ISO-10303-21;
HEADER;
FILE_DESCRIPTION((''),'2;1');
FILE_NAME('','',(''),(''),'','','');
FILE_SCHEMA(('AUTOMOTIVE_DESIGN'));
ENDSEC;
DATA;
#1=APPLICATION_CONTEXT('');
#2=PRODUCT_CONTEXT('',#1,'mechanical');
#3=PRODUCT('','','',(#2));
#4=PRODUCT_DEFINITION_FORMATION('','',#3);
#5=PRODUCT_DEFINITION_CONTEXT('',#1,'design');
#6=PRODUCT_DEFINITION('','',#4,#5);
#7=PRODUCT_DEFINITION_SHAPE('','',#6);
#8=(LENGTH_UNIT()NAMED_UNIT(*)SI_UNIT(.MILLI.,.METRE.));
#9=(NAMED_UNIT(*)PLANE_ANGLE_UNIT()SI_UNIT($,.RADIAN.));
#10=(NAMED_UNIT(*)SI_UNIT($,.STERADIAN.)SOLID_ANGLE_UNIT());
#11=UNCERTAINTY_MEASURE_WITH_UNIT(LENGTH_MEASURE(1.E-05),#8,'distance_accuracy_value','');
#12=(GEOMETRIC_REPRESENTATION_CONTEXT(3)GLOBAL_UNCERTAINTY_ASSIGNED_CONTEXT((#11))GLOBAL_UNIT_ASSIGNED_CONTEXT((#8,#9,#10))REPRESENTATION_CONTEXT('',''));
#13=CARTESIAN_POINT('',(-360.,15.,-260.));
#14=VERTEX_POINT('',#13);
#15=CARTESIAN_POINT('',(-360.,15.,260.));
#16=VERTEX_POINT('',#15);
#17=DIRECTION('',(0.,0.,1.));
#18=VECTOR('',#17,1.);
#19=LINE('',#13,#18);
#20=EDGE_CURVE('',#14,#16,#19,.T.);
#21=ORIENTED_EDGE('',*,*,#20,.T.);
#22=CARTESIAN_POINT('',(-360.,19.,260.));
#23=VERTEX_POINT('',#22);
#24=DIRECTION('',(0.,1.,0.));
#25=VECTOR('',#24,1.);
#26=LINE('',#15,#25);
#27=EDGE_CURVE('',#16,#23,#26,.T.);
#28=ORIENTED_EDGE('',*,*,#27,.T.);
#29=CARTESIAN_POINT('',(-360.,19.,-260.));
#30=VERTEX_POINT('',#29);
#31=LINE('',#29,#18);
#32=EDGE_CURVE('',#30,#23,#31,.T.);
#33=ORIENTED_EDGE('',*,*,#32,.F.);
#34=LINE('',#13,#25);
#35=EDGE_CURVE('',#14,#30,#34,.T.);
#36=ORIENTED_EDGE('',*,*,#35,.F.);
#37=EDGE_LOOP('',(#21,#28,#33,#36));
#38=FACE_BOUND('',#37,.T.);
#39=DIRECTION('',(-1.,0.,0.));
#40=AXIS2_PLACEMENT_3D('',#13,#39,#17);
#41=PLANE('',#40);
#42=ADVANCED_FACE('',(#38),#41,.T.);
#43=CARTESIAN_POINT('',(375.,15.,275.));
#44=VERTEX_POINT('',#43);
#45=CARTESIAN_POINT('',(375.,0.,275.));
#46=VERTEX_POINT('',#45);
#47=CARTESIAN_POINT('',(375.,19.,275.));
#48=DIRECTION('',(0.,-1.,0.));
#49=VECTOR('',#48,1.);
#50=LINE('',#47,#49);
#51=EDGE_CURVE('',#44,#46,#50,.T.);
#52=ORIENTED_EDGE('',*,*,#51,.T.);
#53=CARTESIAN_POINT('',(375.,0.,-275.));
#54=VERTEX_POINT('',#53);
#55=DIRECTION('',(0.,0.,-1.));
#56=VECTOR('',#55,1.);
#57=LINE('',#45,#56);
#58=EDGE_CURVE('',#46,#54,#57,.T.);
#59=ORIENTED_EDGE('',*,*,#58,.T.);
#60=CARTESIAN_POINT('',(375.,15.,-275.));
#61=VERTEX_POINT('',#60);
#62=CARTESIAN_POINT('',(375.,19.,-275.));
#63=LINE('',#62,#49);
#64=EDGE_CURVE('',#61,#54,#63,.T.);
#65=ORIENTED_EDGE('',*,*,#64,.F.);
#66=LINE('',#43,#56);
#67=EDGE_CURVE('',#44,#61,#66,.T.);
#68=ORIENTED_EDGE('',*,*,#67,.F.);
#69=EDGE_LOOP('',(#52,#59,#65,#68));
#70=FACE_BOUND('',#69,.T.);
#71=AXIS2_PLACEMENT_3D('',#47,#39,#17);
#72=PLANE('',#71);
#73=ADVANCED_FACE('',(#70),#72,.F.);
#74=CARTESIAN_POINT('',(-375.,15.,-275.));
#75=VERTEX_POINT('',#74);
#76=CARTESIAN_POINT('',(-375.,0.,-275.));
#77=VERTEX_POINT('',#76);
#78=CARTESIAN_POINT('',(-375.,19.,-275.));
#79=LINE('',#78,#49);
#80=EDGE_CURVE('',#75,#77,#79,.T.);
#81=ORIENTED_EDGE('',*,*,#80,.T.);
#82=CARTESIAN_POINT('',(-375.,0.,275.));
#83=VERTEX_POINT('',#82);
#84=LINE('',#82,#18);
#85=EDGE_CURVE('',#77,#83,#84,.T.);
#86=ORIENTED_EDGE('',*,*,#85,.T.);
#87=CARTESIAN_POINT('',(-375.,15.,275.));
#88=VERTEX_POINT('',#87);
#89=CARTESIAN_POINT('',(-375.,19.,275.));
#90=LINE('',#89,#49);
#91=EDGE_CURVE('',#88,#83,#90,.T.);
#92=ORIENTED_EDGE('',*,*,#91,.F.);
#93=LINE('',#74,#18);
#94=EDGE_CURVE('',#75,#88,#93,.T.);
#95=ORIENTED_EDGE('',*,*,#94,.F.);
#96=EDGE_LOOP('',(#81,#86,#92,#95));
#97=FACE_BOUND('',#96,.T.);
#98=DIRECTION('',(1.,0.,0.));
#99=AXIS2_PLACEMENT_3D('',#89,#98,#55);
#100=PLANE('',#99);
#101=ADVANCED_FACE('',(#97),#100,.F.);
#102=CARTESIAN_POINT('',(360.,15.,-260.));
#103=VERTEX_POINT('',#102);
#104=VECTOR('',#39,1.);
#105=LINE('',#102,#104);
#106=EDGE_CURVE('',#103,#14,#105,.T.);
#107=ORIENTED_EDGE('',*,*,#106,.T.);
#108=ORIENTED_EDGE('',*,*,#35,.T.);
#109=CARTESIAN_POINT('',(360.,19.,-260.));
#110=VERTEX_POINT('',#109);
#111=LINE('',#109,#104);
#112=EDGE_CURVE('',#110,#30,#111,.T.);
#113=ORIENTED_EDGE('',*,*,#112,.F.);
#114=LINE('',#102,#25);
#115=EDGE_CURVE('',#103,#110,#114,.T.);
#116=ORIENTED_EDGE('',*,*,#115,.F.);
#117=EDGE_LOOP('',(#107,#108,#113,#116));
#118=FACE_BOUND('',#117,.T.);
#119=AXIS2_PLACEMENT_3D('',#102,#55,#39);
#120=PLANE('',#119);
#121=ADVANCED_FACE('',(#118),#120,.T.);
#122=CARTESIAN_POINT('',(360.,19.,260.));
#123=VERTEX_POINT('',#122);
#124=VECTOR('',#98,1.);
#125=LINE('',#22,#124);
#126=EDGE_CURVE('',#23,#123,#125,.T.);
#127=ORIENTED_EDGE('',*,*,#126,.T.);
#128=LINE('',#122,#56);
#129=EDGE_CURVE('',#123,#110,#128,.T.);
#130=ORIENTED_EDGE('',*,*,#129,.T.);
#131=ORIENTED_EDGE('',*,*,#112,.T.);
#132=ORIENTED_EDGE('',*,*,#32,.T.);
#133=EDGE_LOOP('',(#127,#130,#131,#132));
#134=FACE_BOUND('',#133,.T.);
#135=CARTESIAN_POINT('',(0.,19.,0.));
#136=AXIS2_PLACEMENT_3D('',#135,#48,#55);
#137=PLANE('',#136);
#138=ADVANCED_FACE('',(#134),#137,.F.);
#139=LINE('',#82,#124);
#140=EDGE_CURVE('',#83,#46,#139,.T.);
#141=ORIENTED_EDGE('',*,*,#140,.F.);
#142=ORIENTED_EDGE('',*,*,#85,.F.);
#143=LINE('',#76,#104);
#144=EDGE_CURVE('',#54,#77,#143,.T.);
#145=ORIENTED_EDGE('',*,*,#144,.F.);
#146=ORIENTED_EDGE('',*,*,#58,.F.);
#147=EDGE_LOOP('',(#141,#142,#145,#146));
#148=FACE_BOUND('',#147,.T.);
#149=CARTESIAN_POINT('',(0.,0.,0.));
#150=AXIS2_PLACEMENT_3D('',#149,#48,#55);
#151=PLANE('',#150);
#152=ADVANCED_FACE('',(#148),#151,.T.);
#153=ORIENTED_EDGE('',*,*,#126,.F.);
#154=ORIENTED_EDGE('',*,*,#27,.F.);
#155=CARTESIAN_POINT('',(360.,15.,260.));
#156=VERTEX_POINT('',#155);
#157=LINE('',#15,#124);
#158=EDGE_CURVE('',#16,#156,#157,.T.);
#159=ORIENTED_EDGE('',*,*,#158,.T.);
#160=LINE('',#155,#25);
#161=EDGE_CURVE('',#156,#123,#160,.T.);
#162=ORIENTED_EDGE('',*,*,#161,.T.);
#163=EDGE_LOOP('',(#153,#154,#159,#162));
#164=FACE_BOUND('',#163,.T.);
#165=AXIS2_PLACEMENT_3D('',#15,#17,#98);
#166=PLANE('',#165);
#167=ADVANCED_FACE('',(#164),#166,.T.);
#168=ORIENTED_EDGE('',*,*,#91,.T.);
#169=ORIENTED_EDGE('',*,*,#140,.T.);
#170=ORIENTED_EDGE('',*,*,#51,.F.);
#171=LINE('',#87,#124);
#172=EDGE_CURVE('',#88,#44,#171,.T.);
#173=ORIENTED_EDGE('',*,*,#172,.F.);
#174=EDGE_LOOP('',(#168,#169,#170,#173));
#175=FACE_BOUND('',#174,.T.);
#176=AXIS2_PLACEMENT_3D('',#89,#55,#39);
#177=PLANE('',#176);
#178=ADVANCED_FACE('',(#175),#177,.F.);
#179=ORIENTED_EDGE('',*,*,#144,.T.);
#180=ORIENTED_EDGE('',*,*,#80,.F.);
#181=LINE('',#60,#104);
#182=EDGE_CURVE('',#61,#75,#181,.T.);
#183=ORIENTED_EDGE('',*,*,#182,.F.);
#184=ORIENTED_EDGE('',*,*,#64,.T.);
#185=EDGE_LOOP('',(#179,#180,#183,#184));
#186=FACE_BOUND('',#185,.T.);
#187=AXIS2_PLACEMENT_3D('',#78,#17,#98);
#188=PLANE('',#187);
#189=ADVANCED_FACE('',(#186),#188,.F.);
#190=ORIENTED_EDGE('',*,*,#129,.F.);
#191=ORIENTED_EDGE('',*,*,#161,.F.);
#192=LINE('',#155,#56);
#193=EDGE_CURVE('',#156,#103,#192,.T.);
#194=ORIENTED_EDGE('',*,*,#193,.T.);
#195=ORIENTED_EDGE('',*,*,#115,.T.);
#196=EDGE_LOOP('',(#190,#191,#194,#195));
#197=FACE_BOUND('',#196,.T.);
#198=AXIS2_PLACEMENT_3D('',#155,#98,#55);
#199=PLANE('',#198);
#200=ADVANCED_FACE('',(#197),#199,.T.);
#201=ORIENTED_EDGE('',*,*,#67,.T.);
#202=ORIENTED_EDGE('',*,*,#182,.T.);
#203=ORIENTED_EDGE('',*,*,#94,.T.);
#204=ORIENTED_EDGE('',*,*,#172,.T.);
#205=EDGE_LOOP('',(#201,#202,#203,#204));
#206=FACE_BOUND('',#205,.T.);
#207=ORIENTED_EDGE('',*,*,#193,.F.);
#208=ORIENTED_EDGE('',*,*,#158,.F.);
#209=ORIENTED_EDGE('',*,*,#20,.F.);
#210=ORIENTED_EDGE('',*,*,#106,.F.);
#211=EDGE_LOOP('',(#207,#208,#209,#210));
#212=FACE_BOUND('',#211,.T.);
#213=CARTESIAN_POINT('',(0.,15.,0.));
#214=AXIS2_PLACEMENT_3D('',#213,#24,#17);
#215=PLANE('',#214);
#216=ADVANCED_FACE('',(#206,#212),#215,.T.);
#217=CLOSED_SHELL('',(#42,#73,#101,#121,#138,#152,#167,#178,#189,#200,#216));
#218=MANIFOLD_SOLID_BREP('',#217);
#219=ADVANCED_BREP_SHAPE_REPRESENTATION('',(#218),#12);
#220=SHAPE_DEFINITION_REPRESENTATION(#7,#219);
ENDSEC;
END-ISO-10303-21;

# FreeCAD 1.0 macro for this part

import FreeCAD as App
import Part
import Sketcher
from FreeCAD import Vector


def add_polygon(sketch, points):
    """Adds a closed chain of lines whose ends are joined by coincident constraints."""
    first, n = sketch.GeometryCount, len(points)
    for a, b in zip(points, points[1:] + points[:1]):
        sketch.addGeometry(Part.LineSegment(App.Vector(*a, 0), App.Vector(*b, 0)), False)
    for i in range(n):
        sketch.addConstraint(Sketcher.Constraint("Coincident", first + i, 2, first + (i + 1) % n, 1))

doc = App.newDocument("Part")
body = doc.addObject("PartDesign::Body", "Body")

# Sketch on XZ plane
sketch1 = body.newObject("Sketcher::SketchObject", "Sketch")
sketch1.AttachmentSupport = (doc.getObject("XZ_Plane"), [""])
sketch1.MapMode = "FlatFace"
add_polygon(sketch1, [(-375, -275), (-375, 275), (375, 275), (375, -275)])  # lines 0-3
sketch1.addConstraint([
    Sketcher.Constraint("Vertical", 0),
    Sketcher.Constraint("Horizontal", 1),
    Sketcher.Constraint("Vertical", 2),
    Sketcher.Constraint("Horizontal", 3),
    Sketcher.Constraint("Symmetric", 0, 2, 2, 2, -1, 1),
    Sketcher.Constraint("DistanceX", 1, 1, 1, 2, 750.0),
    Sketcher.Constraint("DistanceY", 0, 1, 0, 2, 550.0),
])
pad1 = body.newObject("PartDesign::Pad", "Pad")
pad1.Profile = sketch1
pad1.Length = 19
pad1.Reversed = True

# Sketch on XZ plane
sketch2 = body.newObject("Sketcher::SketchObject", "Sketch001")
sketch2.AttachmentSupport = (doc.getObject("XZ_Plane"), [""])
sketch2.MapMode = "FlatFace"
sketch2.AttachmentOffset = App.Placement(Vector(0, 0, -19), App.Rotation())
add_polygon(sketch2, [(-375, -275), (-375, 275), (375, 275), (375, -275)])  # lines 0-3
add_polygon(sketch2, [(360, 260), (-360, 260), (-360, -260), (360, -260)])  # lines 4-7
sketch2.addConstraint([
    Sketcher.Constraint("Vertical", 0),
    Sketcher.Constraint("Horizontal", 1),
    Sketcher.Constraint("Vertical", 2),
    Sketcher.Constraint("Horizontal", 3),
    Sketcher.Constraint("Horizontal", 4),
    Sketcher.Constraint("Vertical", 5),
    Sketcher.Constraint("Horizontal", 6),
    Sketcher.Constraint("Vertical", 7),
    Sketcher.Constraint("Symmetric", 0, 2, 2, 2, -1, 1),
    Sketcher.Constraint("Symmetric", 4, 2, 6, 2, -1, 1),
    Sketcher.Constraint("DistanceX", 1, 1, 1, 2, 750.0),
    Sketcher.Constraint("DistanceX", 4, 2, 4, 1, 720.0),
    Sketcher.Constraint("DistanceY", 0, 1, 0, 2, 550.0),
    Sketcher.Constraint("DistanceY", 5, 2, 5, 1, 520.0),
])
pocket1 = body.newObject("PartDesign::Pocket", "Pocket")
pocket1.Profile = sketch2
pocket1.Length = 4
pocket1.Reversed = True

doc.recompute()
